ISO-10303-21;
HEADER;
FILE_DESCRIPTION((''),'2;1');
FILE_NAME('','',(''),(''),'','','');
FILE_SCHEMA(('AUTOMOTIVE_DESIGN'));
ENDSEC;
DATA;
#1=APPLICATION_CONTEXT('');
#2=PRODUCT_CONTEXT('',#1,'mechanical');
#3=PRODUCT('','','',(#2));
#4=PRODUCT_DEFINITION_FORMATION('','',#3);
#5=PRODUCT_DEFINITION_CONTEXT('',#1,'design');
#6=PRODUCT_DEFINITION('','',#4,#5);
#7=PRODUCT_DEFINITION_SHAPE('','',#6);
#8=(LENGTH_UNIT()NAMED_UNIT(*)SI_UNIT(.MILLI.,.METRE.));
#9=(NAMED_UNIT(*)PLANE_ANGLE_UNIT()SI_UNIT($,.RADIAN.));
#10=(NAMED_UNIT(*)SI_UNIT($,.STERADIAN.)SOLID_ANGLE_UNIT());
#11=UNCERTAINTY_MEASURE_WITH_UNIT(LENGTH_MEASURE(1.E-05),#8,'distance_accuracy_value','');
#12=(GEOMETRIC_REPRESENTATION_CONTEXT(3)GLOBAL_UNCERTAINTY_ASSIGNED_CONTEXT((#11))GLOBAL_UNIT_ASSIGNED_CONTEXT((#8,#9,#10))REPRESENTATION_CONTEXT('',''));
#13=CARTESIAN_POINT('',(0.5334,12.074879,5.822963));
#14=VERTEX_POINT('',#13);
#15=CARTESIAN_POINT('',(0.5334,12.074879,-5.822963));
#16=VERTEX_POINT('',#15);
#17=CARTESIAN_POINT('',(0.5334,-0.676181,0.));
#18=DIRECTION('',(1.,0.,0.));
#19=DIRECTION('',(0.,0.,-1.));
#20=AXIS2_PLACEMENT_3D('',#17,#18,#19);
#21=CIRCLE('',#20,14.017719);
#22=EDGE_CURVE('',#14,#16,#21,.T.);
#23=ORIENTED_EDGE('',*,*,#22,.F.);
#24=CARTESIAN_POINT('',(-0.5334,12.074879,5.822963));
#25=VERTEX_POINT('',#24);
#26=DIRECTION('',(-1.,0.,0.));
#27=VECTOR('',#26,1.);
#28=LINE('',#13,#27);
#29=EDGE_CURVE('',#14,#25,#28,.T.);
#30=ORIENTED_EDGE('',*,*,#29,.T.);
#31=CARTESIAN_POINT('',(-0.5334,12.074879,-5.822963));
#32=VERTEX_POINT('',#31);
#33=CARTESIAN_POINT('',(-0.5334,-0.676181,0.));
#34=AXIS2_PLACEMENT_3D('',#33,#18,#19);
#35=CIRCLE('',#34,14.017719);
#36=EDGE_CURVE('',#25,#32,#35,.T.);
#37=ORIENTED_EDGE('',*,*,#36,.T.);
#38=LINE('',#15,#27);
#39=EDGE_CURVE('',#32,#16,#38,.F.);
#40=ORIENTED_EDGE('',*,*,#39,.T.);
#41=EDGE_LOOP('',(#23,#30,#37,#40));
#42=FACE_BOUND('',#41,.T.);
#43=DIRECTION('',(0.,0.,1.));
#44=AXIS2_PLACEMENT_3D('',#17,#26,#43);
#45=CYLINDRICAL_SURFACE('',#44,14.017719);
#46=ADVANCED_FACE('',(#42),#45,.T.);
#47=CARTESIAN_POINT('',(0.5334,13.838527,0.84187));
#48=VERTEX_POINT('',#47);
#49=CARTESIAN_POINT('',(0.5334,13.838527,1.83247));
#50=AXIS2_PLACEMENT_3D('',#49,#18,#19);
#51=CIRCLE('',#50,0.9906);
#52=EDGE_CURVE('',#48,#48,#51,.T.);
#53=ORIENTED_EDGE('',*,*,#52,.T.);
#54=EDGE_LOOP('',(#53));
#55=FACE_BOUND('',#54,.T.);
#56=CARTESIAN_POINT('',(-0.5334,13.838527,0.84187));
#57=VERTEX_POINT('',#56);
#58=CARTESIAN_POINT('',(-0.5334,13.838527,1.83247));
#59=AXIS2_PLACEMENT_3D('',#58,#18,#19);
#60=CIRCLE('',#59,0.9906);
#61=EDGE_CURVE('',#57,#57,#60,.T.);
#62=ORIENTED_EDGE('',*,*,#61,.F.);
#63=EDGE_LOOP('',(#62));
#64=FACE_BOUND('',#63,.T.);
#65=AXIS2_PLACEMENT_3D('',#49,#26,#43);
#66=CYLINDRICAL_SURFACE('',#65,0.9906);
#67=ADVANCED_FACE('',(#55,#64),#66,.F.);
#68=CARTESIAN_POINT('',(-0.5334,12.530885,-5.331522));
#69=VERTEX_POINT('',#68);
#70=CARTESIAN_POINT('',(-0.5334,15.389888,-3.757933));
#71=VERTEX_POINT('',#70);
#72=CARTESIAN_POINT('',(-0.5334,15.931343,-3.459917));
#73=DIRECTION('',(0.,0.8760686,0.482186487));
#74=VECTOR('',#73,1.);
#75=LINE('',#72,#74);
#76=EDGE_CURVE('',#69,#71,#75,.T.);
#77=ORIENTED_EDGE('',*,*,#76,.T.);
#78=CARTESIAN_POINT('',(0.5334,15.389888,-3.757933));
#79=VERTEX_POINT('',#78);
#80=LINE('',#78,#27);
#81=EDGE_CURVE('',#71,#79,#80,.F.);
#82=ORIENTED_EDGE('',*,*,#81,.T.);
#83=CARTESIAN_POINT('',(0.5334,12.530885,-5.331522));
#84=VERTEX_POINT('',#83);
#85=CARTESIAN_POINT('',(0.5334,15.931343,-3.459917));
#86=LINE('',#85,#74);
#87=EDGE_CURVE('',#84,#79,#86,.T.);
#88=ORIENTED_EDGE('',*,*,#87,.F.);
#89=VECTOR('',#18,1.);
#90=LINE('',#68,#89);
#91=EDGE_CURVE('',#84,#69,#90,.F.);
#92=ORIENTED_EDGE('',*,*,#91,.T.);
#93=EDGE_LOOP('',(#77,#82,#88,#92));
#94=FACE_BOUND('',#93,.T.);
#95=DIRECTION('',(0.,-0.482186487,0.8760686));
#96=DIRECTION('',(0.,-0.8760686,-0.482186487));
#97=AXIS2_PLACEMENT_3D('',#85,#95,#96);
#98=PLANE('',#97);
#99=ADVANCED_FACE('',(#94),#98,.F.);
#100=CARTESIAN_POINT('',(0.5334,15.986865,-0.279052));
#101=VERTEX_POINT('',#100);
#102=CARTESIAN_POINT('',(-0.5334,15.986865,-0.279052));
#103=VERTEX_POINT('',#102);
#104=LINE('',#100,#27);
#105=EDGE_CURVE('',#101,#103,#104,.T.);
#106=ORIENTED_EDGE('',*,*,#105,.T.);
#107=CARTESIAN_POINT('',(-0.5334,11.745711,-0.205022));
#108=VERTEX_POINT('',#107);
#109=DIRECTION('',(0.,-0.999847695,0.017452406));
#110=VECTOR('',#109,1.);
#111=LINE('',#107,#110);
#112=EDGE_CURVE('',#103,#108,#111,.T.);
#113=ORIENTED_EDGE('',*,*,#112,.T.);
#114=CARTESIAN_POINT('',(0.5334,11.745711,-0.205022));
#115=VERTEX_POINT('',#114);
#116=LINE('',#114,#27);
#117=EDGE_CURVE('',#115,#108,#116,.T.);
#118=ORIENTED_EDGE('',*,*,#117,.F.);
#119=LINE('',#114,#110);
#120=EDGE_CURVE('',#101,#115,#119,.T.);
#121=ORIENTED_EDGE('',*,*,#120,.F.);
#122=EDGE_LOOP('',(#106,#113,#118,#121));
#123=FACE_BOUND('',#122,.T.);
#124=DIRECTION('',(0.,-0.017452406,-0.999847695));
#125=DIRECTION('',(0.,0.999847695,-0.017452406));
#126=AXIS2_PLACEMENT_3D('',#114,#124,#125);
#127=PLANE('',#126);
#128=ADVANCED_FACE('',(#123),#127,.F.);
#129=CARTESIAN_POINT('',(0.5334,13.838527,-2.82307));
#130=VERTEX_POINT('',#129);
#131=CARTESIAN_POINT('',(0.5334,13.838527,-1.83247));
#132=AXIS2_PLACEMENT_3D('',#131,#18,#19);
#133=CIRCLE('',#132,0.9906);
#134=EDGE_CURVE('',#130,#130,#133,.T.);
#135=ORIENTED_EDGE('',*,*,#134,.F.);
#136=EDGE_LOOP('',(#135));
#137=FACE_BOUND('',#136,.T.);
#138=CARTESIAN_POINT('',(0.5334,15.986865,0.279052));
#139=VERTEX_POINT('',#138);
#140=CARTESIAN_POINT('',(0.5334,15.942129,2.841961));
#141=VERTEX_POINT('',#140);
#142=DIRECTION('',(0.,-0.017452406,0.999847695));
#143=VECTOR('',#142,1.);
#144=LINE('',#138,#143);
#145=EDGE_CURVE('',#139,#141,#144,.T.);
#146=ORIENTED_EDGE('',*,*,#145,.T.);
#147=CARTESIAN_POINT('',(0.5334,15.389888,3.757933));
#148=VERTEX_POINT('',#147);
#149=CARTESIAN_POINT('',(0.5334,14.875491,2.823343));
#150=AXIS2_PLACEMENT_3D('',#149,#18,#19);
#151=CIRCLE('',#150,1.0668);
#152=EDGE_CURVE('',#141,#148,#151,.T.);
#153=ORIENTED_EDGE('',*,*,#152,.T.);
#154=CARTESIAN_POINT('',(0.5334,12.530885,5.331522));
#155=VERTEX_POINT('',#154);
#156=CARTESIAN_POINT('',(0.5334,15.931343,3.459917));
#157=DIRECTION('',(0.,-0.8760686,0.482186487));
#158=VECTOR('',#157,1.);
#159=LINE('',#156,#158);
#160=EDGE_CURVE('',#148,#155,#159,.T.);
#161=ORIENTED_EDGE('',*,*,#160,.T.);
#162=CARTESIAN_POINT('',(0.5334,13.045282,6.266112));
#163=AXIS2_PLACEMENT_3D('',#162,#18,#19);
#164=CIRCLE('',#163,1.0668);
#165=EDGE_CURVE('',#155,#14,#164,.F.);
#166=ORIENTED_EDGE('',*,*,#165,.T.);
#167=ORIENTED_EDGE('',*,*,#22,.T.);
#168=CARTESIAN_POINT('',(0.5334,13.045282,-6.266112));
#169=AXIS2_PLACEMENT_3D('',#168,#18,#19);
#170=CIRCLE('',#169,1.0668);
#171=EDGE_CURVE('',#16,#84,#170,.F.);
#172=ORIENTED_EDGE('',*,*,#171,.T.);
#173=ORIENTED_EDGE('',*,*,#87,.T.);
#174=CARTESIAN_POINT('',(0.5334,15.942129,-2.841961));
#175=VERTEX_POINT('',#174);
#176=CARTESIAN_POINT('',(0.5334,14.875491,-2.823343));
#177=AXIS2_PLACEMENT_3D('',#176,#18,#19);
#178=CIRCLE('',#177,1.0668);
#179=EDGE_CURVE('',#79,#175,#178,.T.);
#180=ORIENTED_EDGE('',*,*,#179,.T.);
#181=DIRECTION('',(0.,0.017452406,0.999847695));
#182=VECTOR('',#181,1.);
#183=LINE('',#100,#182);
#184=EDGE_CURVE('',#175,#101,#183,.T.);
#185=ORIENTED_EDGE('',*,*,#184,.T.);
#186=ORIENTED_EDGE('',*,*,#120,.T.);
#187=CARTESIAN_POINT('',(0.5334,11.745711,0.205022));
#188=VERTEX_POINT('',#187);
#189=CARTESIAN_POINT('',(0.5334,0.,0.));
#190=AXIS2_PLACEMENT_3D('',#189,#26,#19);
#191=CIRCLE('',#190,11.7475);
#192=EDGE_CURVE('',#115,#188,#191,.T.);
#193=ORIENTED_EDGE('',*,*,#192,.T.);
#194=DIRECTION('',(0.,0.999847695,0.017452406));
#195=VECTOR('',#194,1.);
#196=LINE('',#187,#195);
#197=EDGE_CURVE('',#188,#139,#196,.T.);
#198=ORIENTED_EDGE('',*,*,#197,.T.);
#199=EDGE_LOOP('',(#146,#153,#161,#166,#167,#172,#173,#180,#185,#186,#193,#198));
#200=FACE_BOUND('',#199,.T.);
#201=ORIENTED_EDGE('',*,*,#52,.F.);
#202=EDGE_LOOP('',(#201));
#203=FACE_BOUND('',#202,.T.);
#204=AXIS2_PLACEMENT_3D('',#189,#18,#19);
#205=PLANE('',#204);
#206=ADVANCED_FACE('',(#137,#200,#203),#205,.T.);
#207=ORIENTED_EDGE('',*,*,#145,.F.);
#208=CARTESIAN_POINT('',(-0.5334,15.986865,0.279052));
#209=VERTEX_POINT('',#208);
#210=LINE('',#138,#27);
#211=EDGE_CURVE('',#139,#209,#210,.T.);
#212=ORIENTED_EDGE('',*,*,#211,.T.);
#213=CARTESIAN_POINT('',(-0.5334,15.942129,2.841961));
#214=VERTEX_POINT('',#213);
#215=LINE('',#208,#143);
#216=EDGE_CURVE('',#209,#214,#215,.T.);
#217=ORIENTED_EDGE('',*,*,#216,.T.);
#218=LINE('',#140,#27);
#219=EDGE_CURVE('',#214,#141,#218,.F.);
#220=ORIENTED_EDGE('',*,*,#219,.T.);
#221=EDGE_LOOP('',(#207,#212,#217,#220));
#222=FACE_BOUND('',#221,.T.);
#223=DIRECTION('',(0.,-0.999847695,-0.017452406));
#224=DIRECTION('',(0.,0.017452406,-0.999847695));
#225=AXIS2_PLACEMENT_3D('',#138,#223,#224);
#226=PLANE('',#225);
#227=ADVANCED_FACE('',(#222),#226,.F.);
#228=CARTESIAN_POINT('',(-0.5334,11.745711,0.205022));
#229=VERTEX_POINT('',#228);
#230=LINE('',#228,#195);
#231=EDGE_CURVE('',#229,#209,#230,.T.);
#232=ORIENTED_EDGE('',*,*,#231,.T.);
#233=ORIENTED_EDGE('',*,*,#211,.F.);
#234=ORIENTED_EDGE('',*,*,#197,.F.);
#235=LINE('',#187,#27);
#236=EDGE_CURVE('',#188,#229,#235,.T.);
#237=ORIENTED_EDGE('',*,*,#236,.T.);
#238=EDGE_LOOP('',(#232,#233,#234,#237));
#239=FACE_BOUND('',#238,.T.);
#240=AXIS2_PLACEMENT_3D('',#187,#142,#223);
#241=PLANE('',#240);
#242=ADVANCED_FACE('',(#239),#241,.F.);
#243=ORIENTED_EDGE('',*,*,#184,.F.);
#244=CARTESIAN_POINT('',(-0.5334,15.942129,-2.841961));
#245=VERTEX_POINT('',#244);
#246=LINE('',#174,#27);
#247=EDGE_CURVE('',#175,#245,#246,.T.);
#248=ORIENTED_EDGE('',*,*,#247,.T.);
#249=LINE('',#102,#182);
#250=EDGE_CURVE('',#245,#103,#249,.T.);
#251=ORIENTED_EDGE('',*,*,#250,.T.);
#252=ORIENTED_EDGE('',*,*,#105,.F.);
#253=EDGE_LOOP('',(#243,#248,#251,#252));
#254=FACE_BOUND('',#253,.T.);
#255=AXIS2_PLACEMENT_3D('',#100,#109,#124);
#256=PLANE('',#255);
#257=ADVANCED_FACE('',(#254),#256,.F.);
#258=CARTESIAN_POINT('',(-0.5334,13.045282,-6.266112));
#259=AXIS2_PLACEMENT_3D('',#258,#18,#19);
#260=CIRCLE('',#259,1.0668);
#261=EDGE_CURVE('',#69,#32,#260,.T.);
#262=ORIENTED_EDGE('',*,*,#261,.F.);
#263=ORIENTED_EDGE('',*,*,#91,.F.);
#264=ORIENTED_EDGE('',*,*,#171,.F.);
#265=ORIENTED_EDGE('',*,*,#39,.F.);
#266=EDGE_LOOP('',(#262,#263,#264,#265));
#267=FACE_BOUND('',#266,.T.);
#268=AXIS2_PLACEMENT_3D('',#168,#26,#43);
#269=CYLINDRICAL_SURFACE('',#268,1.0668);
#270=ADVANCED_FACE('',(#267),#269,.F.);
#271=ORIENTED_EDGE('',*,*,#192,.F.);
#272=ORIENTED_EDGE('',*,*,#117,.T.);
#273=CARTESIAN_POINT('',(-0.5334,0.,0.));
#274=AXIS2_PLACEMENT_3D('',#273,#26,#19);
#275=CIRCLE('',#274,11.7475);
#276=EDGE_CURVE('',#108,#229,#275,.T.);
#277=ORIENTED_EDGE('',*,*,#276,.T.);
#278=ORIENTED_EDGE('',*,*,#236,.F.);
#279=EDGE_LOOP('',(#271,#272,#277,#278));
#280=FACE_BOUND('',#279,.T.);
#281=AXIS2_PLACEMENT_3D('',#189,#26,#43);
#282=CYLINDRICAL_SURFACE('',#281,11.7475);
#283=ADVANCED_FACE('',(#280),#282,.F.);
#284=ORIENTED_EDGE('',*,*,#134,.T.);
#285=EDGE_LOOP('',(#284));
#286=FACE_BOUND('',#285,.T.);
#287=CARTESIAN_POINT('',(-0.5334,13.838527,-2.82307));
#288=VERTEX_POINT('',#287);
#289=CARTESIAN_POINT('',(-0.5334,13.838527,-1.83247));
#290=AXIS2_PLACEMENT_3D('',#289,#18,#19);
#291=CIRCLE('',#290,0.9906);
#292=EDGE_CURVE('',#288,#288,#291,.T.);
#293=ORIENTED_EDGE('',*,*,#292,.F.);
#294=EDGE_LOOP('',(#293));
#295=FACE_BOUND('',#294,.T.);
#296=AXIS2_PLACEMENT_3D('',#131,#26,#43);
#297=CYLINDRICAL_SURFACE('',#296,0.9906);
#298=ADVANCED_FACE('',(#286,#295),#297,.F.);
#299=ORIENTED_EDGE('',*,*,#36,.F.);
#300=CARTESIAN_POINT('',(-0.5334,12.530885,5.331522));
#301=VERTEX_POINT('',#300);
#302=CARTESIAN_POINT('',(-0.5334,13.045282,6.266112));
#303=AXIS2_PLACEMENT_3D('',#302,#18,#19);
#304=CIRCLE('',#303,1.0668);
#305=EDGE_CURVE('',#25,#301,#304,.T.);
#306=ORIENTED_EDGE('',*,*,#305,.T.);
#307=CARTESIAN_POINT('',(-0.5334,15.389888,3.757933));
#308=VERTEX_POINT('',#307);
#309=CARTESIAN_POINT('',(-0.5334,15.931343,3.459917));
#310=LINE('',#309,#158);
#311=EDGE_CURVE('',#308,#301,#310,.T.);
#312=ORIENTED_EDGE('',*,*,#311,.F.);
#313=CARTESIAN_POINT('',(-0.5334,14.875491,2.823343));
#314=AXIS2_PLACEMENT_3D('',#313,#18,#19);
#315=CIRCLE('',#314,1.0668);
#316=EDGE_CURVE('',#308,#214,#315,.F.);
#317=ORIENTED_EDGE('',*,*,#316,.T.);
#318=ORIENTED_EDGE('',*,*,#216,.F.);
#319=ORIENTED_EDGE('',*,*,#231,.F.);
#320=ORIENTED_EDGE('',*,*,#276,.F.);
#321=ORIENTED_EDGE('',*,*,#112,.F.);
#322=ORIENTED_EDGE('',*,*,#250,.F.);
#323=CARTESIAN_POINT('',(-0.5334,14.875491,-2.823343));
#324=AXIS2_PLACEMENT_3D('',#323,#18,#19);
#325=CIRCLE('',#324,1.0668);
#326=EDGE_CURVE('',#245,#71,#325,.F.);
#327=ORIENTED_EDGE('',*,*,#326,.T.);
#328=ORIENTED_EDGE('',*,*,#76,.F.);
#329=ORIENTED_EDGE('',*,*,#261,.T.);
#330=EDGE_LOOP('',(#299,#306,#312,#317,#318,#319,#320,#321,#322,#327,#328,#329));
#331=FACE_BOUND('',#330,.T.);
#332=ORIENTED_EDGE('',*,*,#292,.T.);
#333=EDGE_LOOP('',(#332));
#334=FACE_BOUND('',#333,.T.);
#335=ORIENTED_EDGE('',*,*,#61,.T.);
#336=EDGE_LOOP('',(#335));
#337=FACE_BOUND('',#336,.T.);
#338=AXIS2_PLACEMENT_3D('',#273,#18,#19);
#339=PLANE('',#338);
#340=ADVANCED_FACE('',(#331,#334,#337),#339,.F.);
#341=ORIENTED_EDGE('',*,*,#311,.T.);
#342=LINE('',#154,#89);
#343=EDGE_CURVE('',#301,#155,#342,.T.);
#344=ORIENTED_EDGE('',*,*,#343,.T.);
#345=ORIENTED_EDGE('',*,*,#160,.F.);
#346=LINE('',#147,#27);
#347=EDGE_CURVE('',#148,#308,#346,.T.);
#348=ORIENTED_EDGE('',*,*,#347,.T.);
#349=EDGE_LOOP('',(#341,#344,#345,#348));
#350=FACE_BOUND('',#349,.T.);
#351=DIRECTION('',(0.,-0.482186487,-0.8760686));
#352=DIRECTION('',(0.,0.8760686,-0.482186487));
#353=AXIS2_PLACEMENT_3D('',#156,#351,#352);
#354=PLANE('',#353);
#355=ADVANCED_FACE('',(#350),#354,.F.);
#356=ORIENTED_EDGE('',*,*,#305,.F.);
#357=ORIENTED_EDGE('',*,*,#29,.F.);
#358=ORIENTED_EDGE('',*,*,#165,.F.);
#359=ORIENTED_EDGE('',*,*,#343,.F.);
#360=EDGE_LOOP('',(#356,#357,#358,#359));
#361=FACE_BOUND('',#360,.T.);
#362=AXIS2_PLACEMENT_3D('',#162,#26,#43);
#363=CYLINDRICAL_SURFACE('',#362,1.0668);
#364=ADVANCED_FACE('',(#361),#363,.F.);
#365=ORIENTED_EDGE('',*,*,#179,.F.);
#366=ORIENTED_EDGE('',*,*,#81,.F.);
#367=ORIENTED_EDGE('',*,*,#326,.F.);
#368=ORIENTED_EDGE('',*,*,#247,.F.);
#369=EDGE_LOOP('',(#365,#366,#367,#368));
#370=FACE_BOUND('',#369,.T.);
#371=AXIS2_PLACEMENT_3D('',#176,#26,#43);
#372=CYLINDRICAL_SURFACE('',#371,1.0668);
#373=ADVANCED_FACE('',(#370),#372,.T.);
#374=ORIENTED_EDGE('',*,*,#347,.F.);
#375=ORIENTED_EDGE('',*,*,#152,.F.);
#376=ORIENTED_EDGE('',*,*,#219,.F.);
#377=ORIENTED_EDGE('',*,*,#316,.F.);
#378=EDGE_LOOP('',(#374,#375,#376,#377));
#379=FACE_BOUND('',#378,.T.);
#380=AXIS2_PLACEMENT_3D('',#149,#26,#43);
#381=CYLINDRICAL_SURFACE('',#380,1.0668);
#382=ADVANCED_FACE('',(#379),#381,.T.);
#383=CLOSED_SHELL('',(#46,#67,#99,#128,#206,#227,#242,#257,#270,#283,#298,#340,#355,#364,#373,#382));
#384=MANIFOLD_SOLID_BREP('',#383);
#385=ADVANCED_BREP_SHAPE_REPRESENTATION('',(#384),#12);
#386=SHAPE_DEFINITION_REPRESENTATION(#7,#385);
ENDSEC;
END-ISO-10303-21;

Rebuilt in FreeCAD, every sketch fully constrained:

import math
import FreeCAD as App
import Part
import Sketcher
from FreeCAD import Vector
Q = App.Units.Quantity


def edges_at(feature, points):
    """Names of the edges that pass closest to the given points."""
    edges = feature.Shape.Edges
    near = lambda p: min(range(len(edges)), key=lambda i: edges[i].distToShape(Part.Vertex(*p))[0])
    return sorted({f"Edge{near(p) + 1}" for p in points})

doc = App.newDocument("Part")
params = doc.addObject("Spreadsheet::Sheet", "Params")
for row, (alias, value) in enumerate([
    ("sketch1_diameter", "0.078 in"),
    ("sketch1_length", "0.167 in"),
    ("pad1_length", "0.042 in"),
    ("fillet_radius", "0.042 in"),
], start=1):
    params.set(f"A{row}", alias)
    params.set(f"B{row}", "=" + value)
    params.setAlias(f"B{row}", alias)

body = doc.addObject("PartDesign::Body", "Body")

sketch1 = doc.addObject("Sketcher::SketchObject", "Sketch")
body.addObject(sketch1)
sketch1.AttachmentSupport = (doc.YZ_Plane, [""])
sketch1.MapMode = "FlatFace"
sketch1.addGeometry([
    Part.LineSegment(Vector(11.75, 0.21, 0), Vector(15.99, 0.28, 0)),
    Part.LineSegment(Vector(15.99, 0.28, 0), Vector(15.93, 3.46, 0)),
    Part.LineSegment(Vector(15.93, 3.46, 0), Vector(12.22, 5.51, 0)),
    Part.ArcOfCircle(Part.Circle(Vector(-0.68, 0, 0), Vector(0, 0, 1), 14.02), math.radians(23), math.radians(337)),
    Part.LineSegment(Vector(12.22, -5.51, 0), Vector(15.93, -3.46, 0)),
    Part.LineSegment(Vector(15.93, -3.46, 0), Vector(15.99, -0.28, 0)),
    Part.LineSegment(Vector(15.99, -0.28, 0), Vector(11.75, -0.21, 0)),
    Part.ArcOfCircle(Part.Circle(Vector(0, 0, 0), Vector(0, 0, 1), 11.75), math.radians(1), math.radians(359)),
    Part.Circle(Vector(13.84, 1.83, 0), Vector(0, 0, 1), 0.99),
    Part.Circle(Vector(13.84, -1.83, 0), Vector(0, 0, 1), 0.99),
], False)
sketch1.addConstraint([
    Sketcher.Constraint("Coincident", 0, 2, 1, 1),
    Sketcher.Constraint("Coincident", 1, 2, 2, 1),
    Sketcher.Constraint("Coincident", 2, 2, 3, 1),
    Sketcher.Constraint("Coincident", 3, 2, 4, 1),
    Sketcher.Constraint("Coincident", 4, 2, 5, 1),
    Sketcher.Constraint("Coincident", 5, 2, 6, 1),
    Sketcher.Constraint("Coincident", 6, 2, 7, 2),
    Sketcher.Constraint("Coincident", 7, 1, 0, 1),
    Sketcher.Constraint("Coincident", 7, 3, -1, 1),
    Sketcher.Constraint("Equal", 8, 9),
    Sketcher.Constraint("Symmetric", 8, 3, 9, 3, -1),
    Sketcher.Constraint("Symmetric", 2, 2, 3, 2, -1),
    Sketcher.Constraint("Symmetric", 1, 2, 4, 2, -1),
    Sketcher.Constraint("Symmetric", 0, 2, 5, 2, -1),
    Sketcher.Constraint("Perpendicular", 0, 1),
    Sketcher.Constraint("Perpendicular", 5, 6),
    Sketcher.Constraint("Equal", 0, 2),
    Sketcher.Constraint("Diameter", 8, Q("0.078 in")),
    Sketcher.Constraint("Angle", 0, Q("1 deg")),
    Sketcher.Constraint("Radius", 7, Q("0.4625 in")),
    Sketcher.Constraint("Distance", 0, Q("0.167 in")),
    Sketcher.Constraint("Radius", 3, Q("14.017719 mm")),
    Sketcher.Constraint("Distance", 1, Q("3.18135 mm")),
    Sketcher.Constraint("DistanceX", 3, 3, -1, 1, Q("0.676181 mm")),
    Sketcher.Constraint("DistanceY", -1, 1, 8, 3, Q("1.83247 mm")),
    Sketcher.Constraint("DistanceY", -1, 1, 0, 2, Q("0.279052 mm")),
    Sketcher.Constraint("DistanceX", 8, 3, 0, 2, Q("2.148338 mm")),
])
sketch1.setExpression("Constraints[17]", "Params.sketch1_diameter")
sketch1.setExpression("Constraints[20]", "Params.sketch1_length")
pad1 = doc.addObject("PartDesign::Pad", "Pad")
body.addObject(pad1)
pad1.Profile = sketch1
pad1.setExpression("Length", "Params.pad1_length")
pad1.Midplane = True
doc.recompute()

fillet = doc.addObject("PartDesign::Fillet", "Fillet")
body.addObject(fillet)
fillet.Base = (pad1, edges_at(pad1, [
    (0, 15.931, -3.46),
    (0, 12.215, -5.505),
    (0, 12.215, 5.505),
    (0, 15.931, 3.46),
]))
fillet.setExpression("Radius", "Params.fillet_radius")

doc.recompute()
